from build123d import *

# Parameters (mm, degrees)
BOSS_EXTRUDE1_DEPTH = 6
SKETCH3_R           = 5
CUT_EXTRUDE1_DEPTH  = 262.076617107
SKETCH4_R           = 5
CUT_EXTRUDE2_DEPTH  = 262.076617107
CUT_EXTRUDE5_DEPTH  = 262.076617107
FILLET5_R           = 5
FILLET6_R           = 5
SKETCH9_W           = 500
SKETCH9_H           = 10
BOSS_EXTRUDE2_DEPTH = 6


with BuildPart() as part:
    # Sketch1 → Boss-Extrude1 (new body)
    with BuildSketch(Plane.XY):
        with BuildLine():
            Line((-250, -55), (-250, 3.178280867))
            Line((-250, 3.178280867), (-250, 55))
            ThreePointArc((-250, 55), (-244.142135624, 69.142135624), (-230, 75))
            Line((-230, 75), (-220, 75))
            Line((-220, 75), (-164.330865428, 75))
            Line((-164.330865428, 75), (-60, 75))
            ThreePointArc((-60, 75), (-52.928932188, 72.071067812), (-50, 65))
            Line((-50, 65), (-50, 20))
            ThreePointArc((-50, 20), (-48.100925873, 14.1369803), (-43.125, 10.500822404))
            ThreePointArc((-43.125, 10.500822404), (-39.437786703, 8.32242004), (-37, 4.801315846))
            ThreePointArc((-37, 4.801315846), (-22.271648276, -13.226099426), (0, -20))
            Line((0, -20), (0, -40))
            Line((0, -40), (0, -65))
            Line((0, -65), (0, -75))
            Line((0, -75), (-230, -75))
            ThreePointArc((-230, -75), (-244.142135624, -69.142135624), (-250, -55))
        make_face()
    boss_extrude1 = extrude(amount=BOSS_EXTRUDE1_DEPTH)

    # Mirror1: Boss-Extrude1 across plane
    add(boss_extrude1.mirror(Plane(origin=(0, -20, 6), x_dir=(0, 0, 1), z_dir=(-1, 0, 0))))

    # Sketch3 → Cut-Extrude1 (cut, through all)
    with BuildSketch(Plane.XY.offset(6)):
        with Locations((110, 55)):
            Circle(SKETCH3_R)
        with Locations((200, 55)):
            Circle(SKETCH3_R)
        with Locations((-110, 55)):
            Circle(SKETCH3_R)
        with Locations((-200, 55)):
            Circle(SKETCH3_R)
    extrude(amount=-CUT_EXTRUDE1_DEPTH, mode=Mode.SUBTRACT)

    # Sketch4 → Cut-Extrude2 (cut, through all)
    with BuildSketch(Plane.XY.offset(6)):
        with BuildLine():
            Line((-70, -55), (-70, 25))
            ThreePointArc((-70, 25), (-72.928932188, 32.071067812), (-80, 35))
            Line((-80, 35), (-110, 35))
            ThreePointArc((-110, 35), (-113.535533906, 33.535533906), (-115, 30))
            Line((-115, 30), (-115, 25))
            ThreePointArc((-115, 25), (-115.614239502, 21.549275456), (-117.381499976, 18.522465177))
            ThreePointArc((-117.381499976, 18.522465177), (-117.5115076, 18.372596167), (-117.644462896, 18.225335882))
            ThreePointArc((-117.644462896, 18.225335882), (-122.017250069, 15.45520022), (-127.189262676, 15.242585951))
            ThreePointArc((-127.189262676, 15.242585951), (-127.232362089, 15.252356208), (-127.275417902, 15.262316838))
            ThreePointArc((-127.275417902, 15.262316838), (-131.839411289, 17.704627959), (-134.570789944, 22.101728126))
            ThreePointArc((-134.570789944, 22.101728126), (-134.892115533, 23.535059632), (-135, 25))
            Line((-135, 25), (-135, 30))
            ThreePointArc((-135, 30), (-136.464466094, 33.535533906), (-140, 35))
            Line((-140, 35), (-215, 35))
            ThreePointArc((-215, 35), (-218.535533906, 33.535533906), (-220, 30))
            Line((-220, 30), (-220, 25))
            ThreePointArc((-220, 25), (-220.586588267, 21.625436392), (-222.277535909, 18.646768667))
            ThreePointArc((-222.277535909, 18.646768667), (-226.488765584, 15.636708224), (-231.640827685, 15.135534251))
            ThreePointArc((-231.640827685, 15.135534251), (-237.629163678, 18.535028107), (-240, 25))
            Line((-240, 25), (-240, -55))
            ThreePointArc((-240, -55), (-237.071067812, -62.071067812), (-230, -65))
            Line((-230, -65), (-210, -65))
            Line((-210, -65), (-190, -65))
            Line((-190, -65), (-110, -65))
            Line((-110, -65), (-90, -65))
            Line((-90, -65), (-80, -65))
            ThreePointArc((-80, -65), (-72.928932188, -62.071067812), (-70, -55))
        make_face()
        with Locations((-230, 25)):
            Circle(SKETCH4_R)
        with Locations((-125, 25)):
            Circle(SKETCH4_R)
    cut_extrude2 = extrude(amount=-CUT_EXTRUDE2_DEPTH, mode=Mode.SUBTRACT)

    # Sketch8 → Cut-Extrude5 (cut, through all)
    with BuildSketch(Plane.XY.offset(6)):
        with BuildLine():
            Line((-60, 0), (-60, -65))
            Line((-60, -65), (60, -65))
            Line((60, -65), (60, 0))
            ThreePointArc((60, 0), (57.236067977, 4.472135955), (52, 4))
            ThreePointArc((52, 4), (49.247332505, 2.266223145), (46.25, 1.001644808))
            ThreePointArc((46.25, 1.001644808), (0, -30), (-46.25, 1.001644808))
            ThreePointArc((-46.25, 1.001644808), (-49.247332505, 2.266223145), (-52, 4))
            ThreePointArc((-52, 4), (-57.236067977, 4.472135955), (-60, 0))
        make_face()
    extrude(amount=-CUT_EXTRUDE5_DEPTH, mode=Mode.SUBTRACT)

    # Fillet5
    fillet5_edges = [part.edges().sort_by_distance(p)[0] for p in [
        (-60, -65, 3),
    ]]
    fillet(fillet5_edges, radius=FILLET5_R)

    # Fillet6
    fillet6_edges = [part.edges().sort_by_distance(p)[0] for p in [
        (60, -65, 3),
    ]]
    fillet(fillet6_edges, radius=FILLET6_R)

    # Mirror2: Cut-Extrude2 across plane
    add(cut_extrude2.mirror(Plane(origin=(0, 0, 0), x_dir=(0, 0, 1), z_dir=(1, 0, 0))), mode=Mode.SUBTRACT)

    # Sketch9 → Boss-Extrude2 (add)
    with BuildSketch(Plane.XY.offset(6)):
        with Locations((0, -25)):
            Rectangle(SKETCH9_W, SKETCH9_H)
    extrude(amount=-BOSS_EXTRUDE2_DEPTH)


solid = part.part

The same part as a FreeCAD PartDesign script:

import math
import FreeCAD as App
import Part
import Sketcher


def edges_at(feature, points):
    """Names of the edges that pass closest to the given points."""
    edges = feature.Shape.Edges
    near = lambda p: min(range(len(edges)), key=lambda i: edges[i].distToShape(Part.Vertex(*p))[0])
    return sorted({f"Edge{near(p) + 1}" for p in points})

doc = App.newDocument("Part")
body = doc.addObject("PartDesign::Body", "Body")

# Sketch on XY plane
sketch1 = doc.addObject("Sketcher::SketchObject", "Sketch")
body.addObject(sketch1)
sketch1.AttachmentSupport = (doc.XY_Plane, [""])
sketch1.MapMode = "FlatFace"
sketch1.addGeometry([
    Part.LineSegment(App.Vector(-250, 55, 0), App.Vector(-250, -55, 0)),  # 0
    Part.ArcOfCircle(Part.Circle(App.Vector(-230, -55, 0), App.Vector(0, 0, 1), 20), math.radians(180), math.radians(270)),  # 1
    Part.LineSegment(App.Vector(-230, -75, 0), App.Vector(0, -75, 0)),  # 2
    Part.LineSegment(App.Vector(0, -75, 0), App.Vector(0, -20, 0)),  # 3
    Part.ArcOfCircle(Part.Circle(App.Vector(0, 20, 0), App.Vector(0, 0, 1), 40), math.radians(-158), math.radians(-90)),  # 4
    Part.ArcOfCircle(Part.Circle(App.Vector(-46, 1, 0), App.Vector(0, 0, 1), 10), math.radians(22), math.radians(72)),  # 5
    Part.ArcOfCircle(Part.Circle(App.Vector(-40, 20, 0), App.Vector(0, 0, 1), 10), math.radians(180), math.radians(252)),  # 6
    Part.LineSegment(App.Vector(-50, 20, 0), App.Vector(-50, 65, 0)),  # 7
    Part.ArcOfCircle(Part.Circle(App.Vector(-60, 65, 0), App.Vector(0, 0, 1), 10), math.radians(0), math.radians(90)),  # 8
    Part.LineSegment(App.Vector(-60, 75, 0), App.Vector(-230, 75, 0)),  # 9
    Part.ArcOfCircle(Part.Circle(App.Vector(-230, 55, 0), App.Vector(0, 0, 1), 20), math.radians(90), math.radians(180)),  # 10
], False)
sketch1.addConstraint([
    Sketcher.Constraint("Tangent", 0, 2, 1, 1),
    Sketcher.Constraint("Tangent", 1, 2, 2, 1),
    Sketcher.Constraint("Coincident", 2, 2, 3, 1),
    Sketcher.Constraint("Coincident", 3, 2, 4, 2),
    Sketcher.Constraint("Tangent", 4, 1, 5, 1),
    Sketcher.Constraint("Tangent", 5, 2, 6, 2),
    Sketcher.Constraint("Tangent", 6, 1, 7, 1),
    Sketcher.Constraint("Tangent", 7, 2, 8, 1),
    Sketcher.Constraint("Tangent", 8, 2, 9, 1),
    Sketcher.Constraint("Tangent", 9, 2, 10, 1),
    Sketcher.Constraint("Tangent", 10, 2, 0, 1),
    Sketcher.Constraint("Vertical", 0),
    Sketcher.Constraint("Horizontal", 2),
    Sketcher.Constraint("Vertical", 3),
    Sketcher.Constraint("Vertical", 7),
    Sketcher.Constraint("Horizontal", 9),
    Sketcher.Constraint("Equal", 5, 6),
    Sketcher.Constraint("Equal", 6, 8),
    Sketcher.Constraint("Equal", 1, 10),
    Sketcher.Constraint("PointOnObject", 4, 3, -2),
    Sketcher.Constraint("PointOnObject", 2, 2, -2),
    Sketcher.Constraint("Horizontal", 4, 3, 6, 3),
    Sketcher.Constraint("Radius", 1, 20.0),
    Sketcher.Constraint("Radius", 4, 40.0),
    Sketcher.Constraint("Radius", 5, 10.0),
    Sketcher.Constraint("DistanceX", 2, 1, 2, 2, 230.0),
    Sketcher.Constraint("DistanceX", 9, 2, 9, 1, 170.0),
    Sketcher.Constraint("DistanceY", 0, 2, 0, 1, 110.0),
    Sketcher.Constraint("DistanceY", 3, 1, 3, 2, 55.0),
    Sketcher.Constraint("DistanceY", 1, 3, -1, 1, 55.0),
])
pad1 = doc.addObject("PartDesign::Pad", "Pad")
body.addObject(pad1)
pad1.Profile = sketch1
pad1.Length = 6
doc.recompute()

mirrored = doc.addObject("PartDesign::Mirrored", "Mirrored")
body.addObject(mirrored)
mirrored.Originals = [pad1]
mirrored.MirrorPlane = (doc.YZ_Plane, [""])
body.Tip = mirrored

# Sketch on XY plane
sketch2 = doc.addObject("Sketcher::SketchObject", "Sketch001")
body.addObject(sketch2)
sketch2.AttachmentSupport = (doc.XY_Plane, [""])
sketch2.MapMode = "FlatFace"
sketch2.AttachmentOffset = App.Placement(App.Vector(0, 0, 6), App.Rotation())
sketch2.addGeometry([
    Part.Circle(App.Vector(110, 55, 0), App.Vector(0, 0, 1), 5),
    Part.Circle(App.Vector(200, 55, 0), App.Vector(0, 0, 1), 5),
    Part.Circle(App.Vector(-110, 55, 0), App.Vector(0, 0, 1), 5),
    Part.Circle(App.Vector(-200, 55, 0), App.Vector(0, 0, 1), 5),
], False)
sketch2.addConstraint([
    Sketcher.Constraint("Equal", 0, 1),
    Sketcher.Constraint("Equal", 1, 2),
    Sketcher.Constraint("Equal", 2, 3),
    Sketcher.Constraint("Symmetric", 0, 3, 2, 3, -2),
    Sketcher.Constraint("Symmetric", 1, 3, 3, 3, -2),
    Sketcher.Constraint("Horizontal", 0, 3, 1, 3),
    Sketcher.Constraint("Diameter", 0, 10.0),
    Sketcher.Constraint("DistanceX", -1, 1, 0, 3, 110.0),
    Sketcher.Constraint("DistanceY", -1, 1, 0, 3, 55.0),
    Sketcher.Constraint("DistanceX", -1, 1, 1, 3, 200.0),
])
pocket1 = doc.addObject("PartDesign::Pocket", "Pocket")
body.addObject(pocket1)
pocket1.Profile = sketch2
pocket1.Type = "ThroughAll"

# Sketch on XY plane
sketch3 = doc.addObject("Sketcher::SketchObject", "Sketch002")
body.addObject(sketch3)
sketch3.AttachmentSupport = (doc.XY_Plane, [""])
sketch3.MapMode = "FlatFace"
sketch3.AttachmentOffset = App.Placement(App.Vector(0, 0, 6), App.Rotation())
sketch3.addGeometry([
    Part.LineSegment(App.Vector(-70, -55, 0), App.Vector(-70, 25, 0)),  # 0
    Part.ArcOfCircle(Part.Circle(App.Vector(-80, 25, 0), App.Vector(0, 0, 1), 10), math.radians(0), math.radians(90)),  # 1
    Part.LineSegment(App.Vector(-80, 35, 0), App.Vector(-110, 35, 0)),  # 2
    Part.ArcOfCircle(Part.Circle(App.Vector(-110, 30, 0), App.Vector(0, 0, 1), 5), math.radians(90), math.radians(180)),  # 3
    Part.LineSegment(App.Vector(-115, 30, 0), App.Vector(-115, 25, 0)),  # 4
    Part.ArcOfCircle(Part.Circle(App.Vector(-125, 25, 0), App.Vector(0, 0, 1), 10), math.radians(-40), math.radians(0)),  # 5
    Part.ArcOfCircle(Part.Circle(App.Vector(-125, 25, 0), App.Vector(0, 0, 1), 10), math.radians(-42.65), math.radians(-40.37)),  # 6
    Part.ArcOfCircle(Part.Circle(App.Vector(-125, 25, 0), App.Vector(0, 0, 1), 10), math.radians(-103), math.radians(-43)),  # 7
    Part.ArcOfCircle(Part.Circle(App.Vector(-125, 25, 0), App.Vector(0, 0, 1), 10), math.radians(-103.15), math.radians(-102.65)),  # 8
    Part.ArcOfCircle(Part.Circle(App.Vector(-125, 25, 0), App.Vector(0, 0, 1), 10), math.radians(-163), math.radians(-103)),  # 9
    Part.ArcOfCircle(Part.Circle(App.Vector(-125, 25, 0), App.Vector(0, 0, 1), 10), math.radians(-180), math.radians(-163.15)),  # 10
    Part.LineSegment(App.Vector(-135, 25, 0), App.Vector(-135, 30, 0)),  # 11
    Part.ArcOfCircle(Part.Circle(App.Vector(-140, 30, 0), App.Vector(0, 0, 1), 5), math.radians(0), math.radians(90)),  # 12
    Part.LineSegment(App.Vector(-140, 35, 0), App.Vector(-215, 35, 0)),  # 13
    Part.ArcOfCircle(Part.Circle(App.Vector(-215, 30, 0), App.Vector(0, 0, 1), 5), math.radians(90), math.radians(180)),  # 14
    Part.LineSegment(App.Vector(-220, 30, 0), App.Vector(-220, 25, 0)),  # 15
    Part.ArcOfCircle(Part.Circle(App.Vector(-230, 25, 0), App.Vector(0, 0, 1), 10), math.radians(-39), math.radians(0)),  # 16
    Part.ArcOfCircle(Part.Circle(App.Vector(-230, 25, 0), App.Vector(0, 0, 1), 10), math.radians(-99), math.radians(-39)),  # 17
    Part.ArcOfCircle(Part.Circle(App.Vector(-230, 25, 0), App.Vector(0, 0, 1), 10), math.radians(180), math.radians(261)),  # 18
    Part.LineSegment(App.Vector(-240, 25, 0), App.Vector(-240, -55, 0)),  # 19
    Part.ArcOfCircle(Part.Circle(App.Vector(-230, -55, 0), App.Vector(0, 0, 1), 10), math.radians(180), math.radians(270)),  # 20
    Part.LineSegment(App.Vector(-230, -65, 0), App.Vector(-80, -65, 0)),  # 21
    Part.ArcOfCircle(Part.Circle(App.Vector(-80, -55, 0), App.Vector(0, 0, 1), 10), math.radians(-90), math.radians(0)),  # 22
    Part.Circle(App.Vector(-230, 25, 0), App.Vector(0, 0, 1), 5),  # 23
    Part.Circle(App.Vector(-125, 25, 0), App.Vector(0, 0, 1), 5),  # 24
], False)
sketch3.addConstraint([
    Sketcher.Constraint("Tangent", 0, 2, 1, 1),
    Sketcher.Constraint("Tangent", 1, 2, 2, 1),
    Sketcher.Constraint("Tangent", 2, 2, 3, 1),
    Sketcher.Constraint("Tangent", 3, 2, 4, 1),
    Sketcher.Constraint("Tangent", 4, 2, 5, 2),
    Sketcher.Constraint("Tangent", 5, 1, 6, 2),
    Sketcher.Constraint("Tangent", 6, 1, 7, 2),
    Sketcher.Constraint("Tangent", 7, 1, 8, 2),
    Sketcher.Constraint("Tangent", 8, 1, 9, 2),
    Sketcher.Constraint("Tangent", 9, 1, 10, 2),
    Sketcher.Constraint("Tangent", 10, 1, 11, 1),
    Sketcher.Constraint("Tangent", 11, 2, 12, 1),
    Sketcher.Constraint("Tangent", 12, 2, 13, 1),
    Sketcher.Constraint("Tangent", 13, 2, 14, 1),
    Sketcher.Constraint("Tangent", 14, 2, 15, 1),
    Sketcher.Constraint("Tangent", 15, 2, 16, 2),
    Sketcher.Constraint("Tangent", 16, 1, 17, 2),
    Sketcher.Constraint("Tangent", 17, 1, 18, 2),
    Sketcher.Constraint("Tangent", 18, 1, 19, 1),
    Sketcher.Constraint("Tangent", 19, 2, 20, 1),
    Sketcher.Constraint("Tangent", 20, 2, 21, 1),
    Sketcher.Constraint("Tangent", 21, 2, 22, 1),
    Sketcher.Constraint("Tangent", 22, 2, 0, 1),
    Sketcher.Constraint("Vertical", 0),
    Sketcher.Constraint("Horizontal", 2),
    Sketcher.Constraint("Vertical", 4),
    Sketcher.Constraint("Vertical", 11),
    Sketcher.Constraint("Horizontal", 13),
    Sketcher.Constraint("Vertical", 15),
    Sketcher.Constraint("Vertical", 19),
    Sketcher.Constraint("Horizontal", 21),
    Sketcher.Constraint("Coincident", 7, 3, 5, 3),
    Sketcher.Constraint("Coincident", 9, 3, 5, 3),
    Sketcher.Constraint("Coincident", 18, 3, 16, 3),
    Sketcher.Constraint("Coincident", 23, 3, 16, 3),
    Sketcher.Constraint("Coincident", 24, 3, 5, 3),
    Sketcher.Constraint("Equal", 1, 5),
    Sketcher.Constraint("Equal", 9, 10),
    Sketcher.Constraint("Equal", 3, 12),
    Sketcher.Constraint("Equal", 12, 14),
    Sketcher.Constraint("Equal", 10, 16),
    Sketcher.Constraint("Equal", 18, 20),
    Sketcher.Constraint("Equal", 20, 22),
    Sketcher.Constraint("Equal", 14, 23),
    Sketcher.Constraint("Equal", 23, 24),
    Sketcher.Constraint("Horizontal", 1, 3, 5, 3),
    Sketcher.Constraint("Horizontal", 3, 3, 12, 3),
    Sketcher.Constraint("Horizontal", 10, 3, 16, 3),
    Sketcher.Constraint("Diameter", 23, 10.0),
    Sketcher.Constraint("Radius", 1, 10.0),
    Sketcher.Constraint("DistanceX", 2, 2, 2, 1, 30.0),
    Sketcher.Constraint("DistanceX", 13, 2, 13, 1, 75.0),
    Sketcher.Constraint("DistanceY", 0, 1, 0, 2, 80.0),
    Sketcher.Constraint("DistanceX", 1, 3, -1, 1, 80.0),
    Sketcher.Constraint("DistanceY", -1, 1, 1, 3, 25.0),
    Sketcher.Constraint("DistanceX", 5, 1, -1, 1, 117.3815),
    Sketcher.Constraint("DistanceX", 7, 1, 6, 1, 9.5448),
    Sketcher.Constraint("DistanceX", 9, 1, -1, 1, 134.57079),
    Sketcher.Constraint("DistanceY", -1, 1, 16, 1, 18.646769),
    Sketcher.Constraint("DistanceY", 6, 1, 5, 1, 0.297129),
    Sketcher.Constraint("DistanceY", 7, 1, 8, 1, 0.019731),
    Sketcher.Constraint("DistanceX", 17, 1, 16, 1, 9.363292),
])
pocket2 = doc.addObject("PartDesign::Pocket", "Pocket001")
body.addObject(pocket2)
pocket2.Profile = sketch3
pocket2.Type = "ThroughAll"

# Sketch on XY plane
sketch4 = doc.addObject("Sketcher::SketchObject", "Sketch003")
body.addObject(sketch4)
sketch4.AttachmentSupport = (doc.XY_Plane, [""])
sketch4.MapMode = "FlatFace"
sketch4.AttachmentOffset = App.Placement(App.Vector(0, 0, 6), App.Rotation())
sketch4.addGeometry([
    Part.LineSegment(App.Vector(-60, 0, 0), App.Vector(-60, -65, 0)),  # 0
    Part.LineSegment(App.Vector(-60, -65, 0), App.Vector(60, -65, 0)),  # 1
    Part.LineSegment(App.Vector(60, -65, 0), App.Vector(60, 0, 0)),  # 2
    Part.ArcOfCircle(Part.Circle(App.Vector(55, 0, 0), App.Vector(0, 0, 1), 5), math.radians(0), math.radians(127)),  # 3
    Part.ArcOfCircle(Part.Circle(App.Vector(40, 20, 0), App.Vector(0, 0, 1), 20), math.radians(-71.79), math.radians(-53.13)),  # 4
    Part.ArcOfCircle(Part.Circle(App.Vector(0, 20, 0), App.Vector(0, 0, 1), 50), math.radians(-158), math.radians(-22)),  # 5
    Part.ArcOfCircle(Part.Circle(App.Vector(-40, 20, 0), App.Vector(0, 0, 1), 20), math.radians(-126.87), math.radians(-108.21)),  # 6
    Part.ArcOfCircle(Part.Circle(App.Vector(-55, 0, 0), App.Vector(0, 0, 1), 5), math.radians(53), math.radians(180)),  # 7
], False)
sketch4.addConstraint([
    Sketcher.Constraint("Coincident", 0, 2, 1, 1),
    Sketcher.Constraint("Coincident", 1, 2, 2, 1),
    Sketcher.Constraint("Tangent", 2, 2, 3, 1),
    Sketcher.Constraint("Tangent", 3, 2, 4, 2),
    Sketcher.Constraint("Coincident", 4, 1, 5, 2),
    Sketcher.Constraint("Coincident", 5, 1, 6, 2),
    Sketcher.Constraint("Tangent", 6, 1, 7, 1),
    Sketcher.Constraint("Tangent", 7, 2, 0, 1),
    Sketcher.Constraint("Vertical", 0),
    Sketcher.Constraint("Horizontal", 1),
    Sketcher.Constraint("Vertical", 2),
    Sketcher.Constraint("Equal", 4, 6),
    Sketcher.Constraint("Equal", 3, 7),
    Sketcher.Constraint("Symmetric", 3, 3, 7, 3, -1, 1),
    Sketcher.Constraint("Symmetric", 4, 3, 6, 3, -2),
    Sketcher.Constraint("PointOnObject", 5, 3, -2),
    Sketcher.Constraint("Horizontal", 4, 3, 5, 3),
    Sketcher.Constraint("Radius", 3, 5.0),
    Sketcher.Constraint("Radius", 4, 20.0),
    Sketcher.Constraint("Radius", 5, 50.0),
    Sketcher.Constraint("DistanceX", 1, 1, 1, 2, 120.0),
    Sketcher.Constraint("DistanceY", 0, 2, 0, 1, 65.0),
    Sketcher.Constraint("DistanceX", -1, 1, 4, 3, 40.0),
])
pocket3 = doc.addObject("PartDesign::Pocket", "Pocket002")
body.addObject(pocket3)
pocket3.Profile = sketch4
pocket3.Type = "ThroughAll"
doc.recompute()

fillet = doc.addObject("PartDesign::Fillet", "Fillet")
body.addObject(fillet)
fillet.Base = (pocket3, edges_at(pocket3, [(-60, -65, 3)]))
fillet.Radius = 5
doc.recompute()

fillet2 = doc.addObject("PartDesign::Fillet", "Fillet001")
body.addObject(fillet2)
fillet2.Base = (fillet, edges_at(fillet, [(60, -65, 3)]))
fillet2.Radius = 5
doc.recompute()

mirrored2 = doc.addObject("PartDesign::Mirrored", "Mirrored001")
body.addObject(mirrored2)
mirrored2.Originals = [pocket2]
mirrored2.MirrorPlane = (doc.YZ_Plane, [""])
body.Tip = mirrored2

# Sketch on XY plane
sketch5 = doc.addObject("Sketcher::SketchObject", "Sketch004")
body.addObject(sketch5)
sketch5.AttachmentSupport = (doc.XY_Plane, [""])
sketch5.MapMode = "FlatFace"
sketch5.AttachmentOffset = App.Placement(App.Vector(0, 0, 6), App.Rotation())
sketch5.addGeometry([
    Part.LineSegment(App.Vector(-250, -20, 0), App.Vector(-250, -30, 0)),
    Part.LineSegment(App.Vector(-250, -30, 0), App.Vector(250, -30, 0)),
    Part.LineSegment(App.Vector(250, -30, 0), App.Vector(250, -20, 0)),
    Part.LineSegment(App.Vector(250, -20, 0), App.Vector(-250, -20, 0)),
], False)
sketch5.addConstraint([
    Sketcher.Constraint("Coincident", 0, 2, 1, 1),
    Sketcher.Constraint("Coincident", 1, 2, 2, 1),
    Sketcher.Constraint("Coincident", 2, 2, 3, 1),
    Sketcher.Constraint("Coincident", 3, 2, 0, 1),
    Sketcher.Constraint("Vertical", 0),
    Sketcher.Constraint("Horizontal", 1),
    Sketcher.Constraint("Vertical", 2),
    Sketcher.Constraint("Horizontal", 3),
    Sketcher.Constraint("DistanceX", 1, 1, 1, 2, 500.0),
    Sketcher.Constraint("DistanceY", 0, 2, 0, 1, 10.0),
    Sketcher.Constraint("DistanceX", 0, 2, -1, 1, 250.0),
    Sketcher.Constraint("DistanceY", 0, 2, -1, 1, 30.0),
])
pad2 = doc.addObject("PartDesign::Pad", "Pad001")
body.addObject(pad2)
pad2.Profile = sketch5
pad2.Length = 6
pad2.Reversed = True

doc.recompute()
